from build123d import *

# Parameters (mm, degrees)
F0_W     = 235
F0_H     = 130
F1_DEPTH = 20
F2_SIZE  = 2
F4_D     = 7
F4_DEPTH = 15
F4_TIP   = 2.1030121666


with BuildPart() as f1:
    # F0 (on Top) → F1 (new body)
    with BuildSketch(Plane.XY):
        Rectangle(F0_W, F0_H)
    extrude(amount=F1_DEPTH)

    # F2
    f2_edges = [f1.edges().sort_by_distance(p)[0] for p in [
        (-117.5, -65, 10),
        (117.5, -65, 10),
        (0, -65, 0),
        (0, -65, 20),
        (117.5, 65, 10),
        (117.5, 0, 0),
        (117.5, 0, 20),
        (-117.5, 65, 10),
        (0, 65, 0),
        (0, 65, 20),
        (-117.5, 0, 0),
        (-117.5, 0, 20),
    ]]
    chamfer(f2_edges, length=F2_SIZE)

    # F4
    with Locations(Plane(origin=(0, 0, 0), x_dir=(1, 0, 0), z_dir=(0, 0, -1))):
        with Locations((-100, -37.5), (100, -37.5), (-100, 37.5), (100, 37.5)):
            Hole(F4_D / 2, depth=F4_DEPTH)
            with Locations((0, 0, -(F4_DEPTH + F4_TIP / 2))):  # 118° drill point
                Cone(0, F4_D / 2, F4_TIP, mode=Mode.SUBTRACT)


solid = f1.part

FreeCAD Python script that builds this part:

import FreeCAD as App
import Part
import Sketcher
from FreeCAD import Vector

doc = App.newDocument("Part")
body = doc.addObject("PartDesign::Body", "Body")

sketch1 = body.newObject("Sketcher::SketchObject", "Sketch")
sketch1.AttachmentSupport = (doc.getObject("XY_Plane"), [""])
sketch1.MapMode = "FlatFace"
sketch1.addGeometry(Part.LineSegment(Vector(-118, 65, 0), Vector(-118, -65, 0)), False)
sketch1.addGeometry(Part.LineSegment(Vector(-118, -65, 0), Vector(118, -65, 0)), False)
sketch1.addGeometry(Part.LineSegment(Vector(118, -65, 0), Vector(118, 65, 0)), False)
sketch1.addGeometry(Part.LineSegment(Vector(118, 65, 0), Vector(-118, 65, 0)), False)
sketch1.addConstraint(Sketcher.Constraint("Coincident", 0, 2, 1, 1))
sketch1.addConstraint(Sketcher.Constraint("Coincident", 1, 2, 2, 1))
sketch1.addConstraint(Sketcher.Constraint("Coincident", 2, 2, 3, 1))
sketch1.addConstraint(Sketcher.Constraint("Coincident", 3, 2, 0, 1))
sketch1.addConstraint(Sketcher.Constraint("Vertical", 0))
sketch1.addConstraint(Sketcher.Constraint("Horizontal", 1))
sketch1.addConstraint(Sketcher.Constraint("Vertical", 2))
sketch1.addConstraint(Sketcher.Constraint("Horizontal", 3))
sketch1.addConstraint(Sketcher.Constraint("Symmetric", 0, 2, 2, 2, -1, 1))
sketch1.addConstraint(Sketcher.Constraint("DistanceX", 1, 1, 1, 2, 235.0))
sketch1.addConstraint(Sketcher.Constraint("DistanceY", 0, 2, 0, 1, 130.0))
pad1 = body.newObject("PartDesign::Pad", "Pad")
pad1.Profile = sketch1
pad1.Length = 20
doc.recompute()

chamfer = body.newObject("PartDesign::Chamfer", "Chamfer")
chamfer.Base = (pad1, ["Edge1"])
chamfer.UseAllEdges = True
chamfer.Size = 2

sketch2 = body.newObject("Sketcher::SketchObject", "Sketch001")
sketch2.AttachmentSupport = (doc.getObject("XY_Plane"), [""])
sketch2.MapMode = "FlatFace"
sketch2.addGeometry(Part.Circle(Vector(-100, 37.5, 0), Vector(0, 0, 1), 3.5), False)
sketch2.addGeometry(Part.Circle(Vector(100, 37.5, 0), Vector(0, 0, 1), 3.5), False)
sketch2.addGeometry(Part.Circle(Vector(-100, -37.5, 0), Vector(0, 0, 1), 3.5), False)
sketch2.addGeometry(Part.Circle(Vector(100, -37.5, 0), Vector(0, 0, 1), 3.5), False)
sketch2.addConstraint(Sketcher.Constraint("Equal", 0, 1))
sketch2.addConstraint(Sketcher.Constraint("Equal", 1, 2))
sketch2.addConstraint(Sketcher.Constraint("Equal", 2, 3))
sketch2.addConstraint(Sketcher.Constraint("Symmetric", 1, 3, 2, 3, -1, 1))
sketch2.addConstraint(Sketcher.Constraint("Symmetric", 0, 3, 3, 3, -1, 1))
sketch2.addConstraint(Sketcher.Constraint("Symmetric", 0, 3, 1, 3, -2))
sketch2.addConstraint(Sketcher.Constraint("Diameter", 0, 7.0))
sketch2.addConstraint(Sketcher.Constraint("DistanceX", 0, 3, -1, 1, 100.0))
sketch2.addConstraint(Sketcher.Constraint("DistanceY", 2, 3, 0, 3, 75.0))
doc.recompute()
hole = body.newObject("PartDesign::Hole", "Hole")
hole.Profile = sketch2
hole.ThreadType = "None"
hole.Diameter = 7
hole.DepthType = "Dimension"
hole.Depth = 15
hole.DrillPoint = "Angled"
hole.DrillPointAngle = 118
hole.Reversed = True

doc.recompute()
